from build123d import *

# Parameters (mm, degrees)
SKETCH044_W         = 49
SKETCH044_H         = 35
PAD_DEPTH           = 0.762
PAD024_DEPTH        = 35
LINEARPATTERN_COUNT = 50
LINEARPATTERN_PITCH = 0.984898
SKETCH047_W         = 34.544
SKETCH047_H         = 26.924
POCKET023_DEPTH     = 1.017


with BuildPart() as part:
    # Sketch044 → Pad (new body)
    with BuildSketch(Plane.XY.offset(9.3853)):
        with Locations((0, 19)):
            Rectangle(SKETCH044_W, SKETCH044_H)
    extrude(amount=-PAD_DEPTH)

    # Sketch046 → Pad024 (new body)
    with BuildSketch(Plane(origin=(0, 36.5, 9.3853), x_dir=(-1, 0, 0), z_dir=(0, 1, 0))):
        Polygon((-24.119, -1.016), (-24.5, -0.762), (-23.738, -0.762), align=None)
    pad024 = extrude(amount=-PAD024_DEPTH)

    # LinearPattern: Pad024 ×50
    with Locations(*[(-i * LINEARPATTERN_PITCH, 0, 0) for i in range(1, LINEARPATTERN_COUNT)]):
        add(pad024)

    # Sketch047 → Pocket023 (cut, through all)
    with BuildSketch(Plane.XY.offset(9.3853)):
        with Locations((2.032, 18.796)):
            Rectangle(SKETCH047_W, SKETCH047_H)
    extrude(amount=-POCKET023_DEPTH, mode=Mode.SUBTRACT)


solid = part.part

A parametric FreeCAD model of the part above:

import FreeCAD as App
import Part
import Sketcher
Q = App.Units.Quantity


def add_polygon(sketch, points):
    """Adds a closed chain of lines whose ends are joined by coincident constraints."""
    first, n = sketch.GeometryCount, len(points)
    for a, b in zip(points, points[1:] + points[:1]):
        sketch.addGeometry(Part.LineSegment(App.Vector(*a, 0), App.Vector(*b, 0)), False)
    for i in range(n):
        sketch.addConstraint(Sketcher.Constraint("Coincident", first + i, 2, first + (i + 1) % n, 1))

doc = App.newDocument("Part")
params = doc.addObject("Spreadsheet::Sheet", "Params")
for row, (alias, value) in enumerate([
    ("pad1_length", "0.03 in"),
    ("sketch2_width", "0.03 in"),
    ("pad2_length", "35 mm"),
    ("linearpattern_pitch", "0.984898 mm"),
    ("sketch3_width", "1.36 in"),
    ("sketch3_height", "1.06 in"),
], start=1):
    params.set(f"A{row}", alias)
    params.set(f"B{row}", "=" + value)
    params.setAlias(f"B{row}", alias)

body = doc.addObject("PartDesign::Body", "Body")

sketch1 = body.newObject("Sketcher::SketchObject", "Sketch")
sketch1.AttachmentSupport = (doc.getObject("XY_Plane"), [""])
sketch1.MapMode = "FlatFace"
sketch1.AttachmentOffset = App.Placement(App.Vector(0, 0, 0.3695 * 25.4), App.Rotation())
add_polygon(sketch1, [(-24.5, 36.5), (-24.5, 1.5), (24.5, 1.5), (24.5, 36.5)])
sketch1.addConstraint([
    Sketcher.Constraint("Vertical", 0),
    Sketcher.Constraint("Horizontal", 1),
    Sketcher.Constraint("Vertical", 2),
    Sketcher.Constraint("Horizontal", 3),
    Sketcher.Constraint("DistanceX", 1, 1, 1, 2, Q("49 mm")),
    Sketcher.Constraint("DistanceY", 0, 2, 0, 1, Q("35 mm")),
    Sketcher.Constraint("DistanceX", 0, 2, -1, 1, Q("24.5 mm")),
    Sketcher.Constraint("DistanceY", -1, 1, 0, 2, Q("1.5 mm")),
])
pad1 = body.newObject("PartDesign::Pad", "Pad")
pad1.Profile = sketch1
pad1.setExpression("Length", "Params.pad1_length")
pad1.Reversed = True

sketch2 = body.newObject("Sketcher::SketchObject", "Sketch001")
sketch2.AttachmentSupport = (doc.getObject("XZ_Plane"), [""])
sketch2.MapMode = "FlatFace"
sketch2.AttachmentOffset = App.Placement(App.Vector(0, 0, -36.5), App.Rotation())
add_polygon(sketch2, [(24.5, 8.6233), (24.119, 8.3693), (23.738, 8.6233)])
sketch2.addConstraint([
    Sketcher.Constraint("Horizontal", 2),
    Sketcher.Constraint("Equal", 0, 1),
    Sketcher.Constraint("DistanceX", 2, 1, 2, 2, Q("0.03 in")),
    Sketcher.Constraint("DistanceY", 0, 2, 1, 2, Q("0.01 in")),
    Sketcher.Constraint("DistanceY", -1, 1, 0, 2, Q("0.3295 in")),
    Sketcher.Constraint("DistanceX", -1, 1, 0, 2, Q("24.119 mm")),
])
sketch2.setExpression("Constraints[5]", "Params.sketch2_width")
pad2 = body.newObject("PartDesign::Pad", "Pad001")
pad2.Profile = sketch2
pad2.setExpression("Length", "Params.pad2_length")
doc.recompute()

linearpattern = body.newObject("PartDesign::LinearPattern", "LinearPattern")
linearpattern.Originals = [pad2]
linearpattern.Direction = (doc.getObject("X_Axis"), [""])
linearpattern.Mode = "offset"
linearpattern.setExpression("Offset", "Params.linearpattern_pitch")
linearpattern.Occurrences = 50
linearpattern.Reversed = True
body.Tip = linearpattern

sketch3 = body.newObject("Sketcher::SketchObject", "Sketch002")
sketch3.AttachmentSupport = (doc.getObject("XY_Plane"), [""])
sketch3.MapMode = "FlatFace"
sketch3.AttachmentOffset = App.Placement(App.Vector(0, 0, 0.3695 * 25.4), App.Rotation())
add_polygon(sketch3, [(-15.24, 32.258), (-15.24, 5.334), (19.304, 5.334), (19.304, 32.258)])
sketch3.addConstraint([
    Sketcher.Constraint("Vertical", 0),
    Sketcher.Constraint("Horizontal", 1),
    Sketcher.Constraint("Vertical", 2),
    Sketcher.Constraint("Horizontal", 3),
    Sketcher.Constraint("DistanceX", 1, 1, 1, 2, Q("1.36 in")),
    Sketcher.Constraint("DistanceY", 0, 2, 0, 1, Q("1.06 in")),
    Sketcher.Constraint("DistanceX", 0, 2, -1, 1, Q("0.6 in")),
    Sketcher.Constraint("DistanceY", -1, 1, 0, 2, Q("0.21 in")),
])
sketch3.setExpression("Constraints[8]", "Params.sketch3_width")
sketch3.setExpression("Constraints[9]", "Params.sketch3_height")
pocket1 = body.newObject("PartDesign::Pocket", "Pocket")
pocket1.Profile = sketch3
pocket1.Type = "ThroughAll"

doc.recompute()
